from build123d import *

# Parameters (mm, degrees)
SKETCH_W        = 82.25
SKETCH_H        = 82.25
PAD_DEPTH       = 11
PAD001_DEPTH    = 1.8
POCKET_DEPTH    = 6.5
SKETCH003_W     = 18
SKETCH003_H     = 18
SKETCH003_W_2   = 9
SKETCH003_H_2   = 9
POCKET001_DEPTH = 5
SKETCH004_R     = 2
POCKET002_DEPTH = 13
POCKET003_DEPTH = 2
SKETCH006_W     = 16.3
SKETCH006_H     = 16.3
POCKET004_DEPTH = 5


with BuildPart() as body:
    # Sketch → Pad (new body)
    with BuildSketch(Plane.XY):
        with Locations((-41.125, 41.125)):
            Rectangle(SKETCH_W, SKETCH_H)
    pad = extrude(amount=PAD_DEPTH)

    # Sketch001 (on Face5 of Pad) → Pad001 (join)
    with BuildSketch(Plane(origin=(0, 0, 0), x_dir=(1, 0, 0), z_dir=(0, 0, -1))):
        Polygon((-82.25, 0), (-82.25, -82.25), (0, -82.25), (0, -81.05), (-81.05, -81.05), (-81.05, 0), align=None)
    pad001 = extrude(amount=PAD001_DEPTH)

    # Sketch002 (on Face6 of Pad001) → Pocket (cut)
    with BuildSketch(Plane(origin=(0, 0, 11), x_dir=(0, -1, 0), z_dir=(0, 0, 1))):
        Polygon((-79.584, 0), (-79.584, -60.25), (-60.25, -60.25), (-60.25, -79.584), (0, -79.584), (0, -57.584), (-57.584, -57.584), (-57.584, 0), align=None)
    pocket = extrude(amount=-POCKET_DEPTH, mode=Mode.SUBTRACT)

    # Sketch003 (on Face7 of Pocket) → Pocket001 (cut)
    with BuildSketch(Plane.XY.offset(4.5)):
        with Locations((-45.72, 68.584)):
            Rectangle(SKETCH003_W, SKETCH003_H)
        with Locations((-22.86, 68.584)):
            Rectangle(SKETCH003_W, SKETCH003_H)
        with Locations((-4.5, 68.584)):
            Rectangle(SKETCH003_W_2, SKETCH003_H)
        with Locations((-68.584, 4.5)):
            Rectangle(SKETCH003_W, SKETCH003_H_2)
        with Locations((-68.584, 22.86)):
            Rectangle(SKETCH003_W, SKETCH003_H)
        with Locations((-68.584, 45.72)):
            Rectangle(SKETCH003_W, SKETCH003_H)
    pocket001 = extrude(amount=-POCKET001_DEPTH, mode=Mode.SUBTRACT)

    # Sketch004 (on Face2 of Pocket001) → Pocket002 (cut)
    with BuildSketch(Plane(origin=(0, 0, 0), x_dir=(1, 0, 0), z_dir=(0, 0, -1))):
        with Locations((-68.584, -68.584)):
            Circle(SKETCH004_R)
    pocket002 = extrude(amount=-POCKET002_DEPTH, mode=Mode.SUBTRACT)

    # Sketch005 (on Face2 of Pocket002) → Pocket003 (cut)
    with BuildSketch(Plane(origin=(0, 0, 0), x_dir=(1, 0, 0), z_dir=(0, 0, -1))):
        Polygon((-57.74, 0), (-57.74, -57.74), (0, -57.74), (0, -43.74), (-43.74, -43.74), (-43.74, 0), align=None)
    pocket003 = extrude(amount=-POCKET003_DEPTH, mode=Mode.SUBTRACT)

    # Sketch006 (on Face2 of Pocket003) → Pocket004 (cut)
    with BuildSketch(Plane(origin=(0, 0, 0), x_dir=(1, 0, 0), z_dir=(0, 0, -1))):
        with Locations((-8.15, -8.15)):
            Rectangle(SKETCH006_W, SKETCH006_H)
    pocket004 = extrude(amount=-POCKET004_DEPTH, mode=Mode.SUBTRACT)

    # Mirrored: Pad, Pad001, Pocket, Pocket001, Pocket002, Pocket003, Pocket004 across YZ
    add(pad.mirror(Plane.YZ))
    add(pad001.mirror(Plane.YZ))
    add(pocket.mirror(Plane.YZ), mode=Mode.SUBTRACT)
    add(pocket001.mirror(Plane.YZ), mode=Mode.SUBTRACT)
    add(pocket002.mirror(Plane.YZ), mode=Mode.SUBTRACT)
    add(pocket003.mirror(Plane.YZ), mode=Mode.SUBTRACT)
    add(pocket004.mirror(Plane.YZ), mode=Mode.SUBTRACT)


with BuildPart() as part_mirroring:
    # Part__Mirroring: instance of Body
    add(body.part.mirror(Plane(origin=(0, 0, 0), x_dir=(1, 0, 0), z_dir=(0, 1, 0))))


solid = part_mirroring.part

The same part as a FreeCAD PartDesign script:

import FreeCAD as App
import Part
import Sketcher

V = App.Vector
Q = App.Units.Quantity

doc = App.newDocument("Part")
params = doc.addObject("Spreadsheet::Sheet", "Params")
for row, (alias, value) in enumerate([
    ("sketch1_width", "82.25 mm"),
    ("pad1_length", "11 mm"),
    ("sketch2_width", "1.2 mm"),
    ("sketch2_width2", "82.25 mm"),
    ("pad2_length", "1.8 mm"),
    ("sketch3_width", "22 mm"),
    ("sketch3_width2", "60.25 mm"),
    ("pocket1_length", "6.5 mm"),
    ("sketch4_width", "18 mm"),
    ("sketch4_width2", "9 mm"),
    ("pocket2_length", "5 mm"),
    ("sketch5_diameter", "4 mm"),
    ("pocket3_length", "13 mm"),
    ("sketch6_width", "14 mm"),
    ("sketch6_width2", "57.74 mm"),
    ("pocket4_length", "2 mm"),
    ("sketch7_width", "16.3 mm"),
    ("pocket5_length", "5 mm"),
], start=1):
    params.set(f"A{row}", alias)
    params.set(f"B{row}", "=" + value)
    params.setAlias(f"B{row}", alias)

body = doc.addObject("PartDesign::Body", "Body")

sketch1 = doc.addObject("Sketcher::SketchObject", "Sketch")
body.addObject(sketch1)
sketch1.AttachmentSupport = (doc.XY_Plane, [""])
sketch1.MapMode = "FlatFace"
sketch1.addGeometry([
    Part.LineSegment(V(-82, 82, 0), V(-82, 0, 0)),
    Part.LineSegment(V(-82, 0, 0), V(0, 0, 0)),
    Part.LineSegment(V(0, 0, 0), V(0, 82, 0)),
    Part.LineSegment(V(0, 82, 0), V(-82, 82, 0)),
], False)
sketch1.addConstraint([
    Sketcher.Constraint("Coincident", 0, 2, 1, 1),
    Sketcher.Constraint("Coincident", 1, 2, 2, 1),
    Sketcher.Constraint("Coincident", 2, 2, 3, 1),
    Sketcher.Constraint("Coincident", 3, 2, 0, 1),
    Sketcher.Constraint("Vertical", 0),
    Sketcher.Constraint("Horizontal", 1),
    Sketcher.Constraint("Vertical", 2),
    Sketcher.Constraint("Horizontal", 3),
    Sketcher.Constraint("Coincident", 1, 2, -1, 1),
    Sketcher.Constraint("Equal", 3, 0),
    Sketcher.Constraint("DistanceX", 1, 1, 1, 2, Q("82.25 mm")),
])
sketch1.setExpression("Constraints[10]", "Params.sketch1_width")
pad1 = doc.addObject("PartDesign::Pad", "Pad")
body.addObject(pad1)
pad1.Profile = sketch1
pad1.setExpression("Length", "Params.pad1_length")

sketch2 = doc.addObject("Sketcher::SketchObject", "Sketch001")
body.addObject(sketch2)
sketch2.AttachmentSupport = (doc.XY_Plane, [""])
sketch2.MapMode = "FlatFace"
sketch2.addGeometry([
    Part.LineSegment(V(-82.2, 0, 0), V(-82.2, 82.2, 0)),
    Part.LineSegment(V(-82.2, 82.2, 0), V(0, 82.2, 0)),
    Part.LineSegment(V(0, 82.2, 0), V(0, 81, 0)),
    Part.LineSegment(V(0, 81, 0), V(-81, 81, 0)),
    Part.LineSegment(V(-81, 81, 0), V(-81, 0, 0)),
    Part.LineSegment(V(-81, 0, 0), V(-82.2, 0, 0)),
], False)
sketch2.addConstraint([
    Sketcher.Constraint("Coincident", 0, 2, 1, 1),
    Sketcher.Constraint("Coincident", 1, 2, 2, 1),
    Sketcher.Constraint("Coincident", 2, 2, 3, 1),
    Sketcher.Constraint("Coincident", 3, 2, 4, 1),
    Sketcher.Constraint("Coincident", 4, 2, 5, 1),
    Sketcher.Constraint("Coincident", 5, 2, 0, 1),
    Sketcher.Constraint("Vertical", 0),
    Sketcher.Constraint("Horizontal", 1),
    Sketcher.Constraint("Vertical", 2),
    Sketcher.Constraint("Horizontal", 3),
    Sketcher.Constraint("Vertical", 4),
    Sketcher.Constraint("Horizontal", 5),
    Sketcher.Constraint("PointOnObject", 1, 2, -2),
    Sketcher.Constraint("PointOnObject", 4, 2, -1),
    Sketcher.Constraint("Equal", 1, 0),
    Sketcher.Constraint("Equal", 5, 2),
    Sketcher.Constraint("DistanceX", 5, 2, 5, 1, Q("1.2 mm")),
    Sketcher.Constraint("DistanceX", 1, 1, 1, 2, Q("82.25 mm")),
])
sketch2.setExpression("Constraints[16]", "Params.sketch2_width")
sketch2.setExpression("Constraints[17]", "Params.sketch2_width2")
pad2 = doc.addObject("PartDesign::Pad", "Pad001")
body.addObject(pad2)
pad2.Profile = sketch2
pad2.setExpression("Length", "Params.pad2_length")
pad2.Reversed = True

sketch3 = doc.addObject("Sketcher::SketchObject", "Sketch002")
body.addObject(sketch3)
sketch3.AttachmentSupport = (doc.XY_Plane, [""])
sketch3.MapMode = "FlatFace"
sketch3.AttachmentOffset = App.Placement(V(0, 0, 11), App.Rotation())
sketch3.addGeometry([
    Part.LineSegment(V(0, 80, 0), V(-60, 80, 0)),
    Part.LineSegment(V(-60, 80, 0), V(-60, 60, 0)),
    Part.LineSegment(V(-60, 60, 0), V(-80, 60, 0)),
    Part.LineSegment(V(-80, 60, 0), V(-80, 0, 0)),
    Part.LineSegment(V(-80, 0, 0), V(-58, 0, 0)),
    Part.LineSegment(V(-58, 0, 0), V(-58, 58, 0)),
    Part.LineSegment(V(-58, 58, 0), V(0, 58, 0)),
    Part.LineSegment(V(0, 58, 0), V(0, 80, 0)),
], False)
sketch3.addConstraint([
    Sketcher.Constraint("Coincident", 0, 2, 1, 1),
    Sketcher.Constraint("Coincident", 1, 2, 2, 1),
    Sketcher.Constraint("Coincident", 2, 2, 3, 1),
    Sketcher.Constraint("Coincident", 3, 2, 4, 1),
    Sketcher.Constraint("Coincident", 4, 2, 5, 1),
    Sketcher.Constraint("Coincident", 5, 2, 6, 1),
    Sketcher.Constraint("Coincident", 6, 2, 7, 1),
    Sketcher.Constraint("Coincident", 7, 2, 0, 1),
    Sketcher.Constraint("Horizontal", 0),
    Sketcher.Constraint("Vertical", 1),
    Sketcher.Constraint("Horizontal", 2),
    Sketcher.Constraint("Vertical", 3),
    Sketcher.Constraint("Horizontal", 4),
    Sketcher.Constraint("Vertical", 5),
    Sketcher.Constraint("Horizontal", 6),
    Sketcher.Constraint("Vertical", 7),
    Sketcher.Constraint("PointOnObject", 3, 2, -1),
    Sketcher.Constraint("PointOnObject", 6, 2, -2),
    Sketcher.Constraint("Equal", 2, 1),
    Sketcher.Constraint("Equal", 0, 3),
    Sketcher.Constraint("Equal", 6, 5),
    Sketcher.Constraint("DistanceX", 4, 1, 4, 2, Q("22 mm")),
    Sketcher.Constraint("DistanceX", 0, 2, 0, 1, Q("60.25 mm")),
    Sketcher.Constraint("DistanceX", 2, 2, 2, 1, Q("19.334 mm")),
])
sketch3.setExpression("Constraints[21]", "Params.sketch3_width")
sketch3.setExpression("Constraints[22]", "Params.sketch3_width2")
pocket1 = doc.addObject("PartDesign::Pocket", "Pocket")
body.addObject(pocket1)
pocket1.Profile = sketch3
pocket1.setExpression("Length", "Params.pocket1_length")

sketch4 = doc.addObject("Sketcher::SketchObject", "Sketch003")
body.addObject(sketch4)
sketch4.AttachmentSupport = (doc.XY_Plane, [""])
sketch4.MapMode = "FlatFace"
sketch4.AttachmentOffset = App.Placement(V(0, 0, 4.5), App.Rotation())
sketch4.addGeometry([
    Part.LineSegment(V(-55, 78, 0), V(-55, 60, 0)),
    Part.LineSegment(V(-55, 60, 0), V(-37, 60, 0)),
    Part.LineSegment(V(-37, 60, 0), V(-37, 78, 0)),
    Part.LineSegment(V(-37, 78, 0), V(-55, 78, 0)),
    Part.LineSegment(V(-32, 78, 0), V(-32, 60, 0)),
    Part.LineSegment(V(-32, 60, 0), V(-14, 60, 0)),
    Part.LineSegment(V(-14, 60, 0), V(-14, 78, 0)),
    Part.LineSegment(V(-14, 78, 0), V(-32, 78, 0)),
    Part.LineSegment(V(-9, 78, 0), V(-9, 60, 0)),
    Part.LineSegment(V(-9, 60, 0), V(0, 60, 0)),
    Part.LineSegment(V(0, 60, 0), V(0, 78, 0)),
    Part.LineSegment(V(0, 78, 0), V(-9, 78, 0)),
    Part.LineSegment(V(-78, 9, 0), V(-78, 0, 0)),
    Part.LineSegment(V(-78, 0, 0), V(-60, 0, 0)),
    Part.LineSegment(V(-60, 0, 0), V(-60, 9, 0)),
    Part.LineSegment(V(-60, 9, 0), V(-78, 9, 0)),
    Part.LineSegment(V(-78, 32, 0), V(-78, 14, 0)),
    Part.LineSegment(V(-78, 14, 0), V(-60, 14, 0)),
    Part.LineSegment(V(-60, 14, 0), V(-60, 32, 0)),
    Part.LineSegment(V(-60, 32, 0), V(-78, 32, 0)),
    Part.LineSegment(V(-78, 55, 0), V(-78, 37, 0)),
    Part.LineSegment(V(-78, 37, 0), V(-60, 37, 0)),
    Part.LineSegment(V(-60, 37, 0), V(-60, 55, 0)),
    Part.LineSegment(V(-60, 55, 0), V(-78, 55, 0)),
], False)
sketch4.addConstraint([
    Sketcher.Constraint("Coincident", 0, 2, 1, 1),
    Sketcher.Constraint("Coincident", 1, 2, 2, 1),
    Sketcher.Constraint("Coincident", 2, 2, 3, 1),
    Sketcher.Constraint("Coincident", 3, 2, 0, 1),
    Sketcher.Constraint("Coincident", 4, 2, 5, 1),
    Sketcher.Constraint("Coincident", 5, 2, 6, 1),
    Sketcher.Constraint("Coincident", 6, 2, 7, 1),
    Sketcher.Constraint("Coincident", 7, 2, 4, 1),
    Sketcher.Constraint("Coincident", 8, 2, 9, 1),
    Sketcher.Constraint("Coincident", 9, 2, 10, 1),
    Sketcher.Constraint("Coincident", 10, 2, 11, 1),
    Sketcher.Constraint("Coincident", 11, 2, 8, 1),
    Sketcher.Constraint("Coincident", 12, 2, 13, 1),
    Sketcher.Constraint("Coincident", 13, 2, 14, 1),
    Sketcher.Constraint("Coincident", 14, 2, 15, 1),
    Sketcher.Constraint("Coincident", 15, 2, 12, 1),
    Sketcher.Constraint("Coincident", 16, 2, 17, 1),
    Sketcher.Constraint("Coincident", 17, 2, 18, 1),
    Sketcher.Constraint("Coincident", 18, 2, 19, 1),
    Sketcher.Constraint("Coincident", 19, 2, 16, 1),
    Sketcher.Constraint("Coincident", 20, 2, 21, 1),
    Sketcher.Constraint("Coincident", 21, 2, 22, 1),
    Sketcher.Constraint("Coincident", 22, 2, 23, 1),
    Sketcher.Constraint("Coincident", 23, 2, 20, 1),
    Sketcher.Constraint("Vertical", 0),
    Sketcher.Constraint("Horizontal", 1),
    Sketcher.Constraint("Vertical", 2),
    Sketcher.Constraint("Horizontal", 3),
    Sketcher.Constraint("Vertical", 4),
    Sketcher.Constraint("Horizontal", 5),
    Sketcher.Constraint("Vertical", 6),
    Sketcher.Constraint("Horizontal", 7),
    Sketcher.Constraint("Vertical", 8),
    Sketcher.Constraint("Horizontal", 9),
    Sketcher.Constraint("Vertical", 10),
    Sketcher.Constraint("Horizontal", 11),
    Sketcher.Constraint("Vertical", 12),
    Sketcher.Constraint("Horizontal", 13),
    Sketcher.Constraint("Vertical", 14),
    Sketcher.Constraint("Horizontal", 15),
    Sketcher.Constraint("Vertical", 16),
    Sketcher.Constraint("Horizontal", 17),
    Sketcher.Constraint("Vertical", 18),
    Sketcher.Constraint("Horizontal", 19),
    Sketcher.Constraint("Vertical", 20),
    Sketcher.Constraint("Horizontal", 21),
    Sketcher.Constraint("Vertical", 22),
    Sketcher.Constraint("Horizontal", 23),
    Sketcher.Constraint("PointOnObject", 9, 2, -2),
    Sketcher.Constraint("PointOnObject", 12, 2, -1),
    Sketcher.Constraint("Horizontal", 1, 2, 4, 2),
    Sketcher.Constraint("Horizontal", 3, 2, 6, 2),
    Sketcher.Constraint("Horizontal", 5, 2, 8, 2),
    Sketcher.Constraint("Horizontal", 7, 2, 10, 2),
    Sketcher.Constraint("Vertical", 15, 2, 16, 2),
    Sketcher.Constraint("Vertical", 14, 2, 17, 2),
    Sketcher.Constraint("Vertical", 19, 2, 20, 2),
    Sketcher.Constraint("Vertical", 18, 2, 21, 2),
    Sketcher.Constraint("Equal", 3, 5),
    Sketcher.Constraint("Equal", 7, 13),
    Sketcher.Constraint("Equal", 23, 0),
    Sketcher.Constraint("Equal", 11, 12),
    Sketcher.Constraint("Equal", 10, 16),
    Sketcher.Constraint("Equal", 18, 20),
    Sketcher.Constraint("DistanceX", 1, 1, 1, 2, Q("18 mm")),
    Sketcher.Constraint("DistanceX", 9, 1, 9, 2, Q("9 mm")),
    Sketcher.Constraint("DistanceX", 0, 2, -1, 1, Q("54.72 mm")),
    Sketcher.Constraint("DistanceX", 4, 2, -1, 1, Q("31.86 mm")),
    Sketcher.Constraint("DistanceY", -1, 1, 16, 2, Q("13.86 mm")),
    Sketcher.Constraint("DistanceY", -1, 1, 20, 2, Q("36.72 mm")),
    Sketcher.Constraint("DistanceY", -1, 1, 0, 2, Q("59.584 mm")),
    Sketcher.Constraint("DistanceX", 12, 2, -1, 1, Q("77.584 mm")),
])
sketch4.setExpression("Constraints[64]", "Params.sketch4_width")
sketch4.setExpression("Constraints[65]", "Params.sketch4_width2")
pocket2 = doc.addObject("PartDesign::Pocket", "Pocket001")
body.addObject(pocket2)
pocket2.Profile = sketch4
pocket2.setExpression("Length", "Params.pocket2_length")

sketch5 = doc.addObject("Sketcher::SketchObject", "Sketch004")
body.addObject(sketch5)
sketch5.AttachmentSupport = (doc.XY_Plane, [""])
sketch5.MapMode = "FlatFace"
sketch5.addGeometry(Part.Circle(V(-68.6, 68.6, 0), V(0, 0, 1), 2), False)
sketch5.addConstraint([
    Sketcher.Constraint("Diameter", 0, Q("4 mm")),
    Sketcher.Constraint("DistanceX", 0, 3, -1, 1, Q("68.584 mm")),
    Sketcher.Constraint("DistanceY", -1, 1, 0, 3, Q("68.584 mm")),
])
sketch5.setExpression("Constraints[0]", "Params.sketch5_diameter")
pocket3 = doc.addObject("PartDesign::Pocket", "Pocket002")
body.addObject(pocket3)
pocket3.Profile = sketch5
pocket3.setExpression("Length", "Params.pocket3_length")
pocket3.Reversed = True

sketch6 = doc.addObject("Sketcher::SketchObject", "Sketch005")
body.addObject(sketch6)
sketch6.AttachmentSupport = (doc.XY_Plane, [""])
sketch6.MapMode = "FlatFace"
sketch6.addGeometry([
    Part.LineSegment(V(-58, 0, 0), V(-58, 58, 0)),
    Part.LineSegment(V(-58, 58, 0), V(0, 58, 0)),
    Part.LineSegment(V(0, 58, 0), V(0, 44, 0)),
    Part.LineSegment(V(0, 44, 0), V(-44, 44, 0)),
    Part.LineSegment(V(-44, 44, 0), V(-44, 0, 0)),
    Part.LineSegment(V(-44, 0, 0), V(-58, 0, 0)),
], False)
sketch6.addConstraint([
    Sketcher.Constraint("Coincident", 0, 2, 1, 1),
    Sketcher.Constraint("Coincident", 1, 2, 2, 1),
    Sketcher.Constraint("Coincident", 2, 2, 3, 1),
    Sketcher.Constraint("Coincident", 3, 2, 4, 1),
    Sketcher.Constraint("Coincident", 4, 2, 5, 1),
    Sketcher.Constraint("Coincident", 5, 2, 0, 1),
    Sketcher.Constraint("Vertical", 0),
    Sketcher.Constraint("Horizontal", 1),
    Sketcher.Constraint("Vertical", 2),
    Sketcher.Constraint("Horizontal", 3),
    Sketcher.Constraint("Vertical", 4),
    Sketcher.Constraint("Horizontal", 5),
    Sketcher.Constraint("PointOnObject", 1, 2, -2),
    Sketcher.Constraint("PointOnObject", 4, 2, -1),
    Sketcher.Constraint("Equal", 1, 0),
    Sketcher.Constraint("Equal", 5, 2),
    Sketcher.Constraint("DistanceX", 5, 2, 5, 1, Q("14 mm")),
    Sketcher.Constraint("DistanceX", 1, 1, 1, 2, Q("57.74 mm")),
])
sketch6.setExpression("Constraints[16]", "Params.sketch6_width")
sketch6.setExpression("Constraints[17]", "Params.sketch6_width2")
pocket4 = doc.addObject("PartDesign::Pocket", "Pocket003")
body.addObject(pocket4)
pocket4.Profile = sketch6
pocket4.setExpression("Length", "Params.pocket4_length")
pocket4.Reversed = True

sketch7 = doc.addObject("Sketcher::SketchObject", "Sketch006")
body.addObject(sketch7)
sketch7.AttachmentSupport = (doc.XY_Plane, [""])
sketch7.MapMode = "FlatFace"
sketch7.addGeometry([
    Part.LineSegment(V(-16, 0, 0), V(-16, 16, 0)),
    Part.LineSegment(V(-16, 16, 0), V(0, 16, 0)),
    Part.LineSegment(V(0, 16, 0), V(0, 0, 0)),
    Part.LineSegment(V(0, 0, 0), V(-16, 0, 0)),
], False)
sketch7.addConstraint([
    Sketcher.Constraint("Coincident", 0, 2, 1, 1),
    Sketcher.Constraint("Coincident", 1, 2, 2, 1),
    Sketcher.Constraint("Coincident", 2, 2, 3, 1),
    Sketcher.Constraint("Coincident", 3, 2, 0, 1),
    Sketcher.Constraint("Vertical", 0),
    Sketcher.Constraint("Horizontal", 1),
    Sketcher.Constraint("Vertical", 2),
    Sketcher.Constraint("Horizontal", 3),
    Sketcher.Constraint("Coincident", 2, 2, -1, 1),
    Sketcher.Constraint("Equal", 3, 0),
    Sketcher.Constraint("DistanceX", 1, 1, 1, 2, Q("16.3 mm")),
])
sketch7.setExpression("Constraints[10]", "Params.sketch7_width")
pocket5 = doc.addObject("PartDesign::Pocket", "Pocket004")
body.addObject(pocket5)
pocket5.Profile = sketch7
pocket5.setExpression("Length", "Params.pocket5_length")
pocket5.Reversed = True
doc.recompute()

mirrored = doc.addObject("PartDesign::Mirrored", "Mirrored")
body.addObject(mirrored)
mirrored.Originals = [pad1, pad2, pocket1, pocket2, pocket3, pocket4, pocket5]
mirrored.MirrorPlane = (doc.YZ_Plane, [""])
body.Tip = mirrored
body2 = doc.addObject("PartDesign::Body", "Body001")
doc.recompute()

mirroring = doc.addObject("Part::Mirroring", "Mirroring")
mirroring.Source = body
mirroring.Base = V(0, 0, 0)
mirroring.Normal = V(0, 1, 0)
body2.BaseFeature = mirroring
doc.recompute()
body.Visibility = False
mirroring.Visibility = False

doc.recompute()
